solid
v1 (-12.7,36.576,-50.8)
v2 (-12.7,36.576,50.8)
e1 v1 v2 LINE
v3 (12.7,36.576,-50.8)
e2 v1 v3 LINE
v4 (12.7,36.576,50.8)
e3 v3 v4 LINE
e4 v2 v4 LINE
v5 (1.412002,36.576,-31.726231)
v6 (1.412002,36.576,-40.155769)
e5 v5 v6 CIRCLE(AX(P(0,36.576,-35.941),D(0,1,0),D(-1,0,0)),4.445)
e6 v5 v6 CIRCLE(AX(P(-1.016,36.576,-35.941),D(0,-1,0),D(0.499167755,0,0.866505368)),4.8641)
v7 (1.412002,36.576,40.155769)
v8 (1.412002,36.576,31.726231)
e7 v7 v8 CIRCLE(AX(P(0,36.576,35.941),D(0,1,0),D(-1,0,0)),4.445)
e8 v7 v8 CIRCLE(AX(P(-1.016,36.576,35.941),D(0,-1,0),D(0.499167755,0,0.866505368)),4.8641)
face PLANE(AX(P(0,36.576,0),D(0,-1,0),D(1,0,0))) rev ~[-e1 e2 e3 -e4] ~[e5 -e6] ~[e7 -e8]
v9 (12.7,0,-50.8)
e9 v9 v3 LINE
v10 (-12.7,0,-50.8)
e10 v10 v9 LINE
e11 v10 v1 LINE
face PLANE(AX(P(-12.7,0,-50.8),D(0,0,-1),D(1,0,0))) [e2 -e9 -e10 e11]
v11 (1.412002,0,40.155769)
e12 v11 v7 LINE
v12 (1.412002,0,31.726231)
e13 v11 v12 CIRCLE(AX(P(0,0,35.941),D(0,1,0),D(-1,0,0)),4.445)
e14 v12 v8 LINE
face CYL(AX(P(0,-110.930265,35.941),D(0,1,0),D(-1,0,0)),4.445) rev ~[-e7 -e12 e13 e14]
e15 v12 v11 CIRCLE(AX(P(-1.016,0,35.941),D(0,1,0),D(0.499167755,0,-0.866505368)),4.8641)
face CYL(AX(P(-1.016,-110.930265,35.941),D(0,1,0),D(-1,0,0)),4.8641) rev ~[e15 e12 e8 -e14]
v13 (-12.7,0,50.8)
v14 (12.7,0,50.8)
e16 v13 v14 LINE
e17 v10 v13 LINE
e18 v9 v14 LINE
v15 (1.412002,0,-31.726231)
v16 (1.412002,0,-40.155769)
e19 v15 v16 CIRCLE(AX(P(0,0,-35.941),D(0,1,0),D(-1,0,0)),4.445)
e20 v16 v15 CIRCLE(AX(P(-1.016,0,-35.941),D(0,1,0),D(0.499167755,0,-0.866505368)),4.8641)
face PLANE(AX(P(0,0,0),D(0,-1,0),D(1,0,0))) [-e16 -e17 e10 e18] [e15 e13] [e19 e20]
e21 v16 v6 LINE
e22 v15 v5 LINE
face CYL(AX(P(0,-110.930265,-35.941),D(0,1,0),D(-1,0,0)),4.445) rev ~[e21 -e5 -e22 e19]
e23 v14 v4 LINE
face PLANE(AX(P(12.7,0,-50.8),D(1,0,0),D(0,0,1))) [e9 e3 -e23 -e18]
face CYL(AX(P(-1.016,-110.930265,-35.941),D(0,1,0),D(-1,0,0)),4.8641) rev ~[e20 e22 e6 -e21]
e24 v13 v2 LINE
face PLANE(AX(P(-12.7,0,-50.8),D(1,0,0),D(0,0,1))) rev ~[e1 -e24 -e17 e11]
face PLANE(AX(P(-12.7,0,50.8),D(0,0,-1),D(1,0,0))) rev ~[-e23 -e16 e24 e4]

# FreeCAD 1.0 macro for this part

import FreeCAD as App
import Part
import Sketcher

V = App.Vector
Q = App.Units.Quantity


def add_polygon(sketch, points):
    """Adds a closed chain of lines whose ends are joined by coincident constraints."""
    first, n = sketch.GeometryCount, len(points)
    for a, b in zip(points, points[1:] + points[:1]):
        sketch.addGeometry(Part.LineSegment(App.Vector(*a, 0), App.Vector(*b, 0)), False)
    for i in range(n):
        sketch.addConstraint(Sketcher.Constraint("Coincident", first + i, 2, first + (i + 1) % n, 1))

doc = App.newDocument("Part")
body = doc.addObject("PartDesign::Body", "Body")

# Sketch on XZ plane
sketch1 = body.newObject("Sketcher::SketchObject", "Sketch")
sketch1.AttachmentSupport = (doc.getObject("XZ_Plane"), [""])
sketch1.MapMode = "FlatFace"
add_polygon(sketch1, [(-13, 51), (-13, -51), (13, -51), (13, 51)])  # lines 0-3
sketch1.addConstraint([
    Sketcher.Constraint("Vertical", 0),
    Sketcher.Constraint("Horizontal", 1),
    Sketcher.Constraint("Vertical", 2),
    Sketcher.Constraint("Horizontal", 3),
    Sketcher.Constraint("Symmetric", 0, 2, 2, 2, -1, 1),
    Sketcher.Constraint("DistanceX", 1, 1, 1, 2, Q("1 in")),
    Sketcher.Constraint("DistanceY", 0, 2, 0, 1, Q("4 in")),
])
pad1 = body.newObject("PartDesign::Pad", "Pad")
pad1.Profile = sketch1
pad1.Length = Q("1.44 in")
pad1.Reversed = True

# Sketch on XZ plane
sketch2 = body.newObject("Sketcher::SketchObject", "Sketch001")
sketch2.AttachmentSupport = (doc.getObject("XZ_Plane"), [""])
sketch2.MapMode = "FlatFace"
sketch2.addGeometry([
    Part.Circle(V(0, 35.9, 0), V(0, 0, 1), 4.4),
    Part.Circle(V(0, -35.9, 0), V(0, 0, 1), 4.4),
], False)
sketch2.addConstraint([
    Sketcher.Constraint("Equal", 0, 1),
    Sketcher.Constraint("Symmetric", 0, 3, 1, 3, -1, 1),
    Sketcher.Constraint("PointOnObject", 0, 3, -2),
    Sketcher.Constraint("Diameter", 0, Q("0.35 in")),
    Sketcher.Constraint("DistanceY", 1, 3, 0, 3, Q("2.83 in")),
])
doc.recompute()
hole = body.newObject("PartDesign::Hole", "Hole")
hole.Profile = sketch2
hole.ThreadType = "None"
hole.Diameter = Q("0.35 in")
hole.DepthType = "ThroughAll"

# Sketch on XZ plane
sketch3 = body.newObject("Sketcher::SketchObject", "Sketch002")
sketch3.AttachmentSupport = (doc.getObject("XZ_Plane"), [""])
sketch3.MapMode = "FlatFace"
sketch3.addGeometry([
    Part.Circle(V(-1, 35.9, 0), V(0, 0, 1), 4.9),
    Part.Circle(V(-1, -35.9, 0), V(0, 0, 1), 4.9),
], False)
sketch3.addConstraint([
    Sketcher.Constraint("Equal", 0, 1),
    Sketcher.Constraint("Symmetric", 0, 3, 1, 3, -1),
    Sketcher.Constraint("Diameter", 0, Q("0.383 in")),
    Sketcher.Constraint("DistanceX", 0, 3, -1, 1, Q("0.04 in")),
    Sketcher.Constraint("DistanceY", 1, 3, 0, 3, Q("2.83 in")),
])
doc.recompute()
hole2 = body.newObject("PartDesign::Hole", "Hole001")
hole2.Profile = sketch3
hole2.ThreadType = "None"
hole2.Diameter = Q("0.383 in")
hole2.DepthType = "ThroughAll"

doc.recompute()
